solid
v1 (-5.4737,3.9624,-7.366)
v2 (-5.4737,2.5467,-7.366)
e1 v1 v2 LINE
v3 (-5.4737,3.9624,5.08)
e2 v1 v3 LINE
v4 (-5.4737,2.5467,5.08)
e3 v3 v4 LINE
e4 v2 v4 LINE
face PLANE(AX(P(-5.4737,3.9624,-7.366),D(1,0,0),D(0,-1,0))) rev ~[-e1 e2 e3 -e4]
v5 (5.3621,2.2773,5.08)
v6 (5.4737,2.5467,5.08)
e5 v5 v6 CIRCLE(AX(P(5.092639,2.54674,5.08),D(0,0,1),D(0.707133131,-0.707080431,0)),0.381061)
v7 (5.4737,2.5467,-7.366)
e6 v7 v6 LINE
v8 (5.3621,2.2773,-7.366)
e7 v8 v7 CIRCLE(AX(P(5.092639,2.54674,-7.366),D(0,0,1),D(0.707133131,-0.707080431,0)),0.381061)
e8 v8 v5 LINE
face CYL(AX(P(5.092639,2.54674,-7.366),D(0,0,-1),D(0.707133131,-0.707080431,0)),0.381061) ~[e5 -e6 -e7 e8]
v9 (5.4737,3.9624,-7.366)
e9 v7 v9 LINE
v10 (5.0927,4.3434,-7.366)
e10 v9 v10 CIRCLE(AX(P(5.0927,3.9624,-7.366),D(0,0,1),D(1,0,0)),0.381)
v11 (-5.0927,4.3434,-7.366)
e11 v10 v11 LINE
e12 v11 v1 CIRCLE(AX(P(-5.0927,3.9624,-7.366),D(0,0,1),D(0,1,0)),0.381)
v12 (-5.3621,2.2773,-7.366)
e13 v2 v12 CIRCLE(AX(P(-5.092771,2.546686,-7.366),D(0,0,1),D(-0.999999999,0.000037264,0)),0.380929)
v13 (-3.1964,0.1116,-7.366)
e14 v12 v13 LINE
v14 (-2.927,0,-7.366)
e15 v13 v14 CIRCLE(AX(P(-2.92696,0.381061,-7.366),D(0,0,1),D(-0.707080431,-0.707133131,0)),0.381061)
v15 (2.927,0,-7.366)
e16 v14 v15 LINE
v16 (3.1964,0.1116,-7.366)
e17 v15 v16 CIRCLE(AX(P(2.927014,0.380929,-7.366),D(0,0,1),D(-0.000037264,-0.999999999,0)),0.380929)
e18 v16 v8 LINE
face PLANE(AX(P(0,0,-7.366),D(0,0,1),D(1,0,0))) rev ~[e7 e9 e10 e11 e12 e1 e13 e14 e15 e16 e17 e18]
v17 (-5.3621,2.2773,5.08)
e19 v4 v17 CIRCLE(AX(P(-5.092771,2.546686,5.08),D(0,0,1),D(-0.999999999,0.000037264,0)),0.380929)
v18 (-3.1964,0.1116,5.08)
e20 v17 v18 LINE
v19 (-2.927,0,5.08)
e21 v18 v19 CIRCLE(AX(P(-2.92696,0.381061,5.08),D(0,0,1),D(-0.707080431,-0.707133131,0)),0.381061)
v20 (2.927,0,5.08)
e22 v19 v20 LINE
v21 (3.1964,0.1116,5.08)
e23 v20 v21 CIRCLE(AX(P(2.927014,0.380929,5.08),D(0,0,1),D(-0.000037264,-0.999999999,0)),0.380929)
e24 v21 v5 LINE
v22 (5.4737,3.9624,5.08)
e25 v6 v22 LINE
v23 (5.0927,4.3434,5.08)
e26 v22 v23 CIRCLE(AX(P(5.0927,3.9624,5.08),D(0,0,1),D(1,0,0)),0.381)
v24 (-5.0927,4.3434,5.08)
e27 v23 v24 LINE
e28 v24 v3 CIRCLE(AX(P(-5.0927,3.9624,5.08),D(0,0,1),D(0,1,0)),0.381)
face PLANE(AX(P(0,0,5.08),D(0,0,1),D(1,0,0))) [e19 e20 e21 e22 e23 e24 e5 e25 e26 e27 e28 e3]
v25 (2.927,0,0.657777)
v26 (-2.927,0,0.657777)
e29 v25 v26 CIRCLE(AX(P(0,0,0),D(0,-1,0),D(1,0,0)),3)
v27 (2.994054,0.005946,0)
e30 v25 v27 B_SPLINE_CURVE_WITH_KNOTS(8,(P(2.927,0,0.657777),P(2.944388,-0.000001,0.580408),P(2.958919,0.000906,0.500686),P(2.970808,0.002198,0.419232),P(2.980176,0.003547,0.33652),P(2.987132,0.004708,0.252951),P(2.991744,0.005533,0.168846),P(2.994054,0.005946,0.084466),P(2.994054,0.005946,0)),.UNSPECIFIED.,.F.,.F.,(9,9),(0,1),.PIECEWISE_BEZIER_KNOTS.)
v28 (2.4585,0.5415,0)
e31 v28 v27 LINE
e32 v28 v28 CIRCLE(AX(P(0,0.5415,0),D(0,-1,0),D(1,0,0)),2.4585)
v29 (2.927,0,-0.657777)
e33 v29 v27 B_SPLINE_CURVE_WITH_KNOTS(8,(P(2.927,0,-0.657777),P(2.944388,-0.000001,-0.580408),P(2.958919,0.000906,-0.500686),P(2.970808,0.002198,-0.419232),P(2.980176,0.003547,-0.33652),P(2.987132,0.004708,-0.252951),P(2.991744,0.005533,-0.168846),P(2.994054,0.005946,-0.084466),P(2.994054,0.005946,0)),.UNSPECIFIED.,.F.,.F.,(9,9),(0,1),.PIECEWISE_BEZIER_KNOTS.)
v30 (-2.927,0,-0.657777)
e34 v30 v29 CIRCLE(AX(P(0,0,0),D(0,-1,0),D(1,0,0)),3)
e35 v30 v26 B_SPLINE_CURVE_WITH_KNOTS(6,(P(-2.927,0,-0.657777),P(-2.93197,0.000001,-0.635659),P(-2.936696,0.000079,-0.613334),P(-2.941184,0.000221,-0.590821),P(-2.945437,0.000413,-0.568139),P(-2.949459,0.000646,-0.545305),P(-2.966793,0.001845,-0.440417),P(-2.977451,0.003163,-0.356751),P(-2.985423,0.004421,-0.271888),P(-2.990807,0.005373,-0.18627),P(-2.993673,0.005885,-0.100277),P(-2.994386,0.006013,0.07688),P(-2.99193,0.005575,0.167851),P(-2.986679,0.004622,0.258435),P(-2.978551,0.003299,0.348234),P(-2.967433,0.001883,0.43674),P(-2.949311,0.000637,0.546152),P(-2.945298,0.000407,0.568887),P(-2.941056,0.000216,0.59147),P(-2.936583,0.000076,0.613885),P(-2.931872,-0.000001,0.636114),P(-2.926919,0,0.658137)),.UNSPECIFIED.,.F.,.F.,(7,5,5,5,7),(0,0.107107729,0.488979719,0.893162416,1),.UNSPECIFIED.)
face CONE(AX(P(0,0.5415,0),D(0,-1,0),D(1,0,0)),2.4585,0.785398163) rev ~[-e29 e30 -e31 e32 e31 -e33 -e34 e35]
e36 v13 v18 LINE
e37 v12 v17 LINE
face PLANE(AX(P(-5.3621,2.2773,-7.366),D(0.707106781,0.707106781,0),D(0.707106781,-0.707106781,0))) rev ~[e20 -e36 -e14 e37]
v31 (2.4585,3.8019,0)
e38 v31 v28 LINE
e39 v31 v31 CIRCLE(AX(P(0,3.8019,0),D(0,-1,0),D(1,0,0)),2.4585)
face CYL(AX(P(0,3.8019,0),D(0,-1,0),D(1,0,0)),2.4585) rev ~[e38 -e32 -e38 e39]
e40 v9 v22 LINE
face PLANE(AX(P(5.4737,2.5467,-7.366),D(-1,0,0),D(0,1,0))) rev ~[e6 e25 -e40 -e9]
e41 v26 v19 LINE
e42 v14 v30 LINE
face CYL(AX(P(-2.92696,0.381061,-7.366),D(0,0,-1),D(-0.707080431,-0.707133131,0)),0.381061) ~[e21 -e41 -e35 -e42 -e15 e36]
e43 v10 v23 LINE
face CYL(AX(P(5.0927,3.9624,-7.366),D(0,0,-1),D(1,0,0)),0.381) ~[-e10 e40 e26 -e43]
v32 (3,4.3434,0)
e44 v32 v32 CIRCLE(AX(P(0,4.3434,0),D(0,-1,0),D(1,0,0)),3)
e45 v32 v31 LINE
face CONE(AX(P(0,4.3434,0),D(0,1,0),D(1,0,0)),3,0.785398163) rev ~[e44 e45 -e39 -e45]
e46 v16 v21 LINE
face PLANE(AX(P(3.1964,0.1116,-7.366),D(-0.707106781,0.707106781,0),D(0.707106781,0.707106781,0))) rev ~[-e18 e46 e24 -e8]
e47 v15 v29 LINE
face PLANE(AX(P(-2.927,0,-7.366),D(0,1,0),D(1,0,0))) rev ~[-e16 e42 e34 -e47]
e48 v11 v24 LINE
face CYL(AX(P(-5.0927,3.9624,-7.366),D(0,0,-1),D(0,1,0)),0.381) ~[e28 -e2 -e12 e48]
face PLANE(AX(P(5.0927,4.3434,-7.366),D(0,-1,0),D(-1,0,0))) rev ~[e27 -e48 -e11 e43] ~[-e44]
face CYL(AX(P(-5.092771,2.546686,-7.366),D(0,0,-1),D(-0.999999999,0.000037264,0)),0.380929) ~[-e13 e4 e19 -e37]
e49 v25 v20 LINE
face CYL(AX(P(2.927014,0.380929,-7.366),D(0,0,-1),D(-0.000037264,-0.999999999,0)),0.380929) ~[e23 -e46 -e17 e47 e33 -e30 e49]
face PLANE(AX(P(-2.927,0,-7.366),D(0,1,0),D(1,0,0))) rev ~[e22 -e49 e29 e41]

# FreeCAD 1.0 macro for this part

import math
import FreeCAD as App
import Part
import Sketcher

V = App.Vector
Q = App.Units.Quantity


def add_polygon(sketch, points):
    """Adds a closed chain of lines whose ends are joined by coincident constraints."""
    first, n = sketch.GeometryCount, len(points)
    for a, b in zip(points, points[1:] + points[:1]):
        sketch.addGeometry(Part.LineSegment(App.Vector(*a, 0), App.Vector(*b, 0)), False)
    for i in range(n):
        sketch.addConstraint(Sketcher.Constraint("Coincident", first + i, 2, first + (i + 1) % n, 1))

doc = App.newDocument("Part")
body = doc.addObject("PartDesign::Body", "Body")

sketch1 = body.newObject("Sketcher::SketchObject", "Sketch")
sketch1.AttachmentSupport = (doc.getObject("XY_Plane"), [""])
sketch1.MapMode = "FlatFace"
sketch1.AttachmentOffset = App.Placement(V(0, 0, -0.29 * 25.4), App.Rotation())
sketch1.addGeometry(Part.ArcOfCircle(Part.Circle(V(-5.0927, 3.9624, 0), V(0, 0, 1), 0.381), math.radians(90), math.radians(180)), False)
sketch1.addGeometry(Part.LineSegment(V(-5.4737, 3.9624, 0), V(-5.4737, 2.5467, 0)), False)
sketch1.addGeometry(Part.ArcOfCircle(Part.Circle(V(-5.0927, 2.5467, 0), V(0, 0, 1), 0.381), math.radians(180), math.radians(225)), False)
sketch1.addGeometry(Part.LineSegment(V(-5.3621, 2.2773, 0), V(-3.1964, 0.1116, 0)), False)
sketch1.addGeometry(Part.ArcOfCircle(Part.Circle(V(-2.927, 0.381, 0), V(0, 0, 1), 0.380989), math.radians(-135), math.radians(-90)), False)
sketch1.addGeometry(Part.LineSegment(V(-2.927, 0, 0), V(2.927, 0, 0)), False)
sketch1.addGeometry(Part.ArcOfCircle(Part.Circle(V(2.927, 0.381, 0), V(0, 0, 1), 0.381), math.radians(-90), math.radians(-45)), False)
sketch1.addGeometry(Part.LineSegment(V(3.1964, 0.1116, 0), V(5.3621, 2.2773, 0)), False)
sketch1.addGeometry(Part.ArcOfCircle(Part.Circle(V(5.0927, 2.5467, 0), V(0, 0, 1), 0.380989), math.radians(-45), math.radians(0)), False)
sketch1.addGeometry(Part.LineSegment(V(5.4737, 2.5467, 0), V(5.4737, 3.9624, 0)), False)
sketch1.addGeometry(Part.ArcOfCircle(Part.Circle(V(5.0927, 3.9624, 0), V(0, 0, 1), 0.381), math.radians(0), math.radians(90)), False)
sketch1.addGeometry(Part.LineSegment(V(5.0927, 4.3434, 0), V(-5.0927, 4.3434, 0)), False)
sketch1.addConstraint(Sketcher.Constraint("Tangent", 0, 2, 1, 1))
sketch1.addConstraint(Sketcher.Constraint("Tangent", 1, 2, 2, 1))
sketch1.addConstraint(Sketcher.Constraint("Tangent", 2, 2, 3, 1))
sketch1.addConstraint(Sketcher.Constraint("Tangent", 3, 2, 4, 1))
sketch1.addConstraint(Sketcher.Constraint("Tangent", 4, 2, 5, 1))
sketch1.addConstraint(Sketcher.Constraint("Tangent", 5, 2, 6, 1))
sketch1.addConstraint(Sketcher.Constraint("Tangent", 6, 2, 7, 1))
sketch1.addConstraint(Sketcher.Constraint("Tangent", 7, 2, 8, 1))
sketch1.addConstraint(Sketcher.Constraint("Tangent", 8, 2, 9, 1))
sketch1.addConstraint(Sketcher.Constraint("Tangent", 9, 2, 10, 1))
sketch1.addConstraint(Sketcher.Constraint("Tangent", 10, 2, 11, 1))
sketch1.addConstraint(Sketcher.Constraint("Tangent", 11, 2, 0, 1))
sketch1.addConstraint(Sketcher.Constraint("Vertical", 1))
sketch1.addConstraint(Sketcher.Constraint("Horizontal", 5))
sketch1.addConstraint(Sketcher.Constraint("Vertical", 9))
sketch1.addConstraint(Sketcher.Constraint("Horizontal", 11))
sketch1.addConstraint(Sketcher.Constraint("Equal", 0, 2))
sketch1.addConstraint(Sketcher.Constraint("Equal", 2, 4))
sketch1.addConstraint(Sketcher.Constraint("Equal", 4, 6))
sketch1.addConstraint(Sketcher.Constraint("Equal", 6, 8))
sketch1.addConstraint(Sketcher.Constraint("Equal", 8, 10))
sketch1.addConstraint(Sketcher.Constraint("Symmetric", 4, 2, 5, 2, -1, 1))
sketch1.addConstraint(Sketcher.Constraint("Symmetric", 2, 3, 8, 3, -2))
sketch1.addConstraint(Sketcher.Constraint("Perpendicular", 3, 7))
sketch1.addConstraint(Sketcher.Constraint("Radius", 0, Q("0.015 in")))
sketch1.addConstraint(Sketcher.Constraint("DistanceX", 11, 2, 11, 1, Q("0.401 in")))
sketch1.addConstraint(Sketcher.Constraint("DistanceY", -1, 1, 0, 3, Q("0.156 in")))
sketch1.addConstraint(Sketcher.Constraint("DistanceX", 5, 1, 5, 2, 5.854))
pad1 = body.newObject("PartDesign::Pad", "Pad")
pad1.Profile = sketch1
pad1.Length = Q("0.49 in")

sketch2 = body.newObject("Sketcher::SketchObject", "Sketch001")
sketch2.AttachmentSupport = (doc.getObject("XY_Plane"), [""])
sketch2.MapMode = "FlatFace"
add_polygon(sketch2, [(0, 4.3434), (0, 0), (3, 0), (2.4585, 0.5415), (2.4585, 3.8019), (3, 4.3434)])
sketch2.addConstraint(Sketcher.Constraint("Vertical", 0))
sketch2.addConstraint(Sketcher.Constraint("Horizontal", 1))
sketch2.addConstraint(Sketcher.Constraint("Vertical", 3))
sketch2.addConstraint(Sketcher.Constraint("Horizontal", 5))
sketch2.addConstraint(Sketcher.Constraint("Coincident", 0, 2, -1, 1))
sketch2.addConstraint(Sketcher.Constraint("Perpendicular", 2, 4))
sketch2.addConstraint(Sketcher.Constraint("Vertical", 1, 2, 4, 2))
sketch2.addConstraint(Sketcher.Constraint("Equal", 2, 4))
sketch2.addConstraint(Sketcher.Constraint("DistanceY", 0, 2, 0, 1, Q("0.171 in")))
sketch2.addConstraint(Sketcher.Constraint("DistanceX", 1, 1, 1, 2, Q("0.1181 in")))
sketch2.addConstraint(Sketcher.Constraint("DistanceY", 3, 1, 3, 2, 3.2604))
groove = body.newObject("PartDesign::Groove", "Groove")
groove.Profile = sketch2
groove.ReferenceAxis = (sketch2, ["V_Axis"])
groove.Angle = 360

doc.recompute()
